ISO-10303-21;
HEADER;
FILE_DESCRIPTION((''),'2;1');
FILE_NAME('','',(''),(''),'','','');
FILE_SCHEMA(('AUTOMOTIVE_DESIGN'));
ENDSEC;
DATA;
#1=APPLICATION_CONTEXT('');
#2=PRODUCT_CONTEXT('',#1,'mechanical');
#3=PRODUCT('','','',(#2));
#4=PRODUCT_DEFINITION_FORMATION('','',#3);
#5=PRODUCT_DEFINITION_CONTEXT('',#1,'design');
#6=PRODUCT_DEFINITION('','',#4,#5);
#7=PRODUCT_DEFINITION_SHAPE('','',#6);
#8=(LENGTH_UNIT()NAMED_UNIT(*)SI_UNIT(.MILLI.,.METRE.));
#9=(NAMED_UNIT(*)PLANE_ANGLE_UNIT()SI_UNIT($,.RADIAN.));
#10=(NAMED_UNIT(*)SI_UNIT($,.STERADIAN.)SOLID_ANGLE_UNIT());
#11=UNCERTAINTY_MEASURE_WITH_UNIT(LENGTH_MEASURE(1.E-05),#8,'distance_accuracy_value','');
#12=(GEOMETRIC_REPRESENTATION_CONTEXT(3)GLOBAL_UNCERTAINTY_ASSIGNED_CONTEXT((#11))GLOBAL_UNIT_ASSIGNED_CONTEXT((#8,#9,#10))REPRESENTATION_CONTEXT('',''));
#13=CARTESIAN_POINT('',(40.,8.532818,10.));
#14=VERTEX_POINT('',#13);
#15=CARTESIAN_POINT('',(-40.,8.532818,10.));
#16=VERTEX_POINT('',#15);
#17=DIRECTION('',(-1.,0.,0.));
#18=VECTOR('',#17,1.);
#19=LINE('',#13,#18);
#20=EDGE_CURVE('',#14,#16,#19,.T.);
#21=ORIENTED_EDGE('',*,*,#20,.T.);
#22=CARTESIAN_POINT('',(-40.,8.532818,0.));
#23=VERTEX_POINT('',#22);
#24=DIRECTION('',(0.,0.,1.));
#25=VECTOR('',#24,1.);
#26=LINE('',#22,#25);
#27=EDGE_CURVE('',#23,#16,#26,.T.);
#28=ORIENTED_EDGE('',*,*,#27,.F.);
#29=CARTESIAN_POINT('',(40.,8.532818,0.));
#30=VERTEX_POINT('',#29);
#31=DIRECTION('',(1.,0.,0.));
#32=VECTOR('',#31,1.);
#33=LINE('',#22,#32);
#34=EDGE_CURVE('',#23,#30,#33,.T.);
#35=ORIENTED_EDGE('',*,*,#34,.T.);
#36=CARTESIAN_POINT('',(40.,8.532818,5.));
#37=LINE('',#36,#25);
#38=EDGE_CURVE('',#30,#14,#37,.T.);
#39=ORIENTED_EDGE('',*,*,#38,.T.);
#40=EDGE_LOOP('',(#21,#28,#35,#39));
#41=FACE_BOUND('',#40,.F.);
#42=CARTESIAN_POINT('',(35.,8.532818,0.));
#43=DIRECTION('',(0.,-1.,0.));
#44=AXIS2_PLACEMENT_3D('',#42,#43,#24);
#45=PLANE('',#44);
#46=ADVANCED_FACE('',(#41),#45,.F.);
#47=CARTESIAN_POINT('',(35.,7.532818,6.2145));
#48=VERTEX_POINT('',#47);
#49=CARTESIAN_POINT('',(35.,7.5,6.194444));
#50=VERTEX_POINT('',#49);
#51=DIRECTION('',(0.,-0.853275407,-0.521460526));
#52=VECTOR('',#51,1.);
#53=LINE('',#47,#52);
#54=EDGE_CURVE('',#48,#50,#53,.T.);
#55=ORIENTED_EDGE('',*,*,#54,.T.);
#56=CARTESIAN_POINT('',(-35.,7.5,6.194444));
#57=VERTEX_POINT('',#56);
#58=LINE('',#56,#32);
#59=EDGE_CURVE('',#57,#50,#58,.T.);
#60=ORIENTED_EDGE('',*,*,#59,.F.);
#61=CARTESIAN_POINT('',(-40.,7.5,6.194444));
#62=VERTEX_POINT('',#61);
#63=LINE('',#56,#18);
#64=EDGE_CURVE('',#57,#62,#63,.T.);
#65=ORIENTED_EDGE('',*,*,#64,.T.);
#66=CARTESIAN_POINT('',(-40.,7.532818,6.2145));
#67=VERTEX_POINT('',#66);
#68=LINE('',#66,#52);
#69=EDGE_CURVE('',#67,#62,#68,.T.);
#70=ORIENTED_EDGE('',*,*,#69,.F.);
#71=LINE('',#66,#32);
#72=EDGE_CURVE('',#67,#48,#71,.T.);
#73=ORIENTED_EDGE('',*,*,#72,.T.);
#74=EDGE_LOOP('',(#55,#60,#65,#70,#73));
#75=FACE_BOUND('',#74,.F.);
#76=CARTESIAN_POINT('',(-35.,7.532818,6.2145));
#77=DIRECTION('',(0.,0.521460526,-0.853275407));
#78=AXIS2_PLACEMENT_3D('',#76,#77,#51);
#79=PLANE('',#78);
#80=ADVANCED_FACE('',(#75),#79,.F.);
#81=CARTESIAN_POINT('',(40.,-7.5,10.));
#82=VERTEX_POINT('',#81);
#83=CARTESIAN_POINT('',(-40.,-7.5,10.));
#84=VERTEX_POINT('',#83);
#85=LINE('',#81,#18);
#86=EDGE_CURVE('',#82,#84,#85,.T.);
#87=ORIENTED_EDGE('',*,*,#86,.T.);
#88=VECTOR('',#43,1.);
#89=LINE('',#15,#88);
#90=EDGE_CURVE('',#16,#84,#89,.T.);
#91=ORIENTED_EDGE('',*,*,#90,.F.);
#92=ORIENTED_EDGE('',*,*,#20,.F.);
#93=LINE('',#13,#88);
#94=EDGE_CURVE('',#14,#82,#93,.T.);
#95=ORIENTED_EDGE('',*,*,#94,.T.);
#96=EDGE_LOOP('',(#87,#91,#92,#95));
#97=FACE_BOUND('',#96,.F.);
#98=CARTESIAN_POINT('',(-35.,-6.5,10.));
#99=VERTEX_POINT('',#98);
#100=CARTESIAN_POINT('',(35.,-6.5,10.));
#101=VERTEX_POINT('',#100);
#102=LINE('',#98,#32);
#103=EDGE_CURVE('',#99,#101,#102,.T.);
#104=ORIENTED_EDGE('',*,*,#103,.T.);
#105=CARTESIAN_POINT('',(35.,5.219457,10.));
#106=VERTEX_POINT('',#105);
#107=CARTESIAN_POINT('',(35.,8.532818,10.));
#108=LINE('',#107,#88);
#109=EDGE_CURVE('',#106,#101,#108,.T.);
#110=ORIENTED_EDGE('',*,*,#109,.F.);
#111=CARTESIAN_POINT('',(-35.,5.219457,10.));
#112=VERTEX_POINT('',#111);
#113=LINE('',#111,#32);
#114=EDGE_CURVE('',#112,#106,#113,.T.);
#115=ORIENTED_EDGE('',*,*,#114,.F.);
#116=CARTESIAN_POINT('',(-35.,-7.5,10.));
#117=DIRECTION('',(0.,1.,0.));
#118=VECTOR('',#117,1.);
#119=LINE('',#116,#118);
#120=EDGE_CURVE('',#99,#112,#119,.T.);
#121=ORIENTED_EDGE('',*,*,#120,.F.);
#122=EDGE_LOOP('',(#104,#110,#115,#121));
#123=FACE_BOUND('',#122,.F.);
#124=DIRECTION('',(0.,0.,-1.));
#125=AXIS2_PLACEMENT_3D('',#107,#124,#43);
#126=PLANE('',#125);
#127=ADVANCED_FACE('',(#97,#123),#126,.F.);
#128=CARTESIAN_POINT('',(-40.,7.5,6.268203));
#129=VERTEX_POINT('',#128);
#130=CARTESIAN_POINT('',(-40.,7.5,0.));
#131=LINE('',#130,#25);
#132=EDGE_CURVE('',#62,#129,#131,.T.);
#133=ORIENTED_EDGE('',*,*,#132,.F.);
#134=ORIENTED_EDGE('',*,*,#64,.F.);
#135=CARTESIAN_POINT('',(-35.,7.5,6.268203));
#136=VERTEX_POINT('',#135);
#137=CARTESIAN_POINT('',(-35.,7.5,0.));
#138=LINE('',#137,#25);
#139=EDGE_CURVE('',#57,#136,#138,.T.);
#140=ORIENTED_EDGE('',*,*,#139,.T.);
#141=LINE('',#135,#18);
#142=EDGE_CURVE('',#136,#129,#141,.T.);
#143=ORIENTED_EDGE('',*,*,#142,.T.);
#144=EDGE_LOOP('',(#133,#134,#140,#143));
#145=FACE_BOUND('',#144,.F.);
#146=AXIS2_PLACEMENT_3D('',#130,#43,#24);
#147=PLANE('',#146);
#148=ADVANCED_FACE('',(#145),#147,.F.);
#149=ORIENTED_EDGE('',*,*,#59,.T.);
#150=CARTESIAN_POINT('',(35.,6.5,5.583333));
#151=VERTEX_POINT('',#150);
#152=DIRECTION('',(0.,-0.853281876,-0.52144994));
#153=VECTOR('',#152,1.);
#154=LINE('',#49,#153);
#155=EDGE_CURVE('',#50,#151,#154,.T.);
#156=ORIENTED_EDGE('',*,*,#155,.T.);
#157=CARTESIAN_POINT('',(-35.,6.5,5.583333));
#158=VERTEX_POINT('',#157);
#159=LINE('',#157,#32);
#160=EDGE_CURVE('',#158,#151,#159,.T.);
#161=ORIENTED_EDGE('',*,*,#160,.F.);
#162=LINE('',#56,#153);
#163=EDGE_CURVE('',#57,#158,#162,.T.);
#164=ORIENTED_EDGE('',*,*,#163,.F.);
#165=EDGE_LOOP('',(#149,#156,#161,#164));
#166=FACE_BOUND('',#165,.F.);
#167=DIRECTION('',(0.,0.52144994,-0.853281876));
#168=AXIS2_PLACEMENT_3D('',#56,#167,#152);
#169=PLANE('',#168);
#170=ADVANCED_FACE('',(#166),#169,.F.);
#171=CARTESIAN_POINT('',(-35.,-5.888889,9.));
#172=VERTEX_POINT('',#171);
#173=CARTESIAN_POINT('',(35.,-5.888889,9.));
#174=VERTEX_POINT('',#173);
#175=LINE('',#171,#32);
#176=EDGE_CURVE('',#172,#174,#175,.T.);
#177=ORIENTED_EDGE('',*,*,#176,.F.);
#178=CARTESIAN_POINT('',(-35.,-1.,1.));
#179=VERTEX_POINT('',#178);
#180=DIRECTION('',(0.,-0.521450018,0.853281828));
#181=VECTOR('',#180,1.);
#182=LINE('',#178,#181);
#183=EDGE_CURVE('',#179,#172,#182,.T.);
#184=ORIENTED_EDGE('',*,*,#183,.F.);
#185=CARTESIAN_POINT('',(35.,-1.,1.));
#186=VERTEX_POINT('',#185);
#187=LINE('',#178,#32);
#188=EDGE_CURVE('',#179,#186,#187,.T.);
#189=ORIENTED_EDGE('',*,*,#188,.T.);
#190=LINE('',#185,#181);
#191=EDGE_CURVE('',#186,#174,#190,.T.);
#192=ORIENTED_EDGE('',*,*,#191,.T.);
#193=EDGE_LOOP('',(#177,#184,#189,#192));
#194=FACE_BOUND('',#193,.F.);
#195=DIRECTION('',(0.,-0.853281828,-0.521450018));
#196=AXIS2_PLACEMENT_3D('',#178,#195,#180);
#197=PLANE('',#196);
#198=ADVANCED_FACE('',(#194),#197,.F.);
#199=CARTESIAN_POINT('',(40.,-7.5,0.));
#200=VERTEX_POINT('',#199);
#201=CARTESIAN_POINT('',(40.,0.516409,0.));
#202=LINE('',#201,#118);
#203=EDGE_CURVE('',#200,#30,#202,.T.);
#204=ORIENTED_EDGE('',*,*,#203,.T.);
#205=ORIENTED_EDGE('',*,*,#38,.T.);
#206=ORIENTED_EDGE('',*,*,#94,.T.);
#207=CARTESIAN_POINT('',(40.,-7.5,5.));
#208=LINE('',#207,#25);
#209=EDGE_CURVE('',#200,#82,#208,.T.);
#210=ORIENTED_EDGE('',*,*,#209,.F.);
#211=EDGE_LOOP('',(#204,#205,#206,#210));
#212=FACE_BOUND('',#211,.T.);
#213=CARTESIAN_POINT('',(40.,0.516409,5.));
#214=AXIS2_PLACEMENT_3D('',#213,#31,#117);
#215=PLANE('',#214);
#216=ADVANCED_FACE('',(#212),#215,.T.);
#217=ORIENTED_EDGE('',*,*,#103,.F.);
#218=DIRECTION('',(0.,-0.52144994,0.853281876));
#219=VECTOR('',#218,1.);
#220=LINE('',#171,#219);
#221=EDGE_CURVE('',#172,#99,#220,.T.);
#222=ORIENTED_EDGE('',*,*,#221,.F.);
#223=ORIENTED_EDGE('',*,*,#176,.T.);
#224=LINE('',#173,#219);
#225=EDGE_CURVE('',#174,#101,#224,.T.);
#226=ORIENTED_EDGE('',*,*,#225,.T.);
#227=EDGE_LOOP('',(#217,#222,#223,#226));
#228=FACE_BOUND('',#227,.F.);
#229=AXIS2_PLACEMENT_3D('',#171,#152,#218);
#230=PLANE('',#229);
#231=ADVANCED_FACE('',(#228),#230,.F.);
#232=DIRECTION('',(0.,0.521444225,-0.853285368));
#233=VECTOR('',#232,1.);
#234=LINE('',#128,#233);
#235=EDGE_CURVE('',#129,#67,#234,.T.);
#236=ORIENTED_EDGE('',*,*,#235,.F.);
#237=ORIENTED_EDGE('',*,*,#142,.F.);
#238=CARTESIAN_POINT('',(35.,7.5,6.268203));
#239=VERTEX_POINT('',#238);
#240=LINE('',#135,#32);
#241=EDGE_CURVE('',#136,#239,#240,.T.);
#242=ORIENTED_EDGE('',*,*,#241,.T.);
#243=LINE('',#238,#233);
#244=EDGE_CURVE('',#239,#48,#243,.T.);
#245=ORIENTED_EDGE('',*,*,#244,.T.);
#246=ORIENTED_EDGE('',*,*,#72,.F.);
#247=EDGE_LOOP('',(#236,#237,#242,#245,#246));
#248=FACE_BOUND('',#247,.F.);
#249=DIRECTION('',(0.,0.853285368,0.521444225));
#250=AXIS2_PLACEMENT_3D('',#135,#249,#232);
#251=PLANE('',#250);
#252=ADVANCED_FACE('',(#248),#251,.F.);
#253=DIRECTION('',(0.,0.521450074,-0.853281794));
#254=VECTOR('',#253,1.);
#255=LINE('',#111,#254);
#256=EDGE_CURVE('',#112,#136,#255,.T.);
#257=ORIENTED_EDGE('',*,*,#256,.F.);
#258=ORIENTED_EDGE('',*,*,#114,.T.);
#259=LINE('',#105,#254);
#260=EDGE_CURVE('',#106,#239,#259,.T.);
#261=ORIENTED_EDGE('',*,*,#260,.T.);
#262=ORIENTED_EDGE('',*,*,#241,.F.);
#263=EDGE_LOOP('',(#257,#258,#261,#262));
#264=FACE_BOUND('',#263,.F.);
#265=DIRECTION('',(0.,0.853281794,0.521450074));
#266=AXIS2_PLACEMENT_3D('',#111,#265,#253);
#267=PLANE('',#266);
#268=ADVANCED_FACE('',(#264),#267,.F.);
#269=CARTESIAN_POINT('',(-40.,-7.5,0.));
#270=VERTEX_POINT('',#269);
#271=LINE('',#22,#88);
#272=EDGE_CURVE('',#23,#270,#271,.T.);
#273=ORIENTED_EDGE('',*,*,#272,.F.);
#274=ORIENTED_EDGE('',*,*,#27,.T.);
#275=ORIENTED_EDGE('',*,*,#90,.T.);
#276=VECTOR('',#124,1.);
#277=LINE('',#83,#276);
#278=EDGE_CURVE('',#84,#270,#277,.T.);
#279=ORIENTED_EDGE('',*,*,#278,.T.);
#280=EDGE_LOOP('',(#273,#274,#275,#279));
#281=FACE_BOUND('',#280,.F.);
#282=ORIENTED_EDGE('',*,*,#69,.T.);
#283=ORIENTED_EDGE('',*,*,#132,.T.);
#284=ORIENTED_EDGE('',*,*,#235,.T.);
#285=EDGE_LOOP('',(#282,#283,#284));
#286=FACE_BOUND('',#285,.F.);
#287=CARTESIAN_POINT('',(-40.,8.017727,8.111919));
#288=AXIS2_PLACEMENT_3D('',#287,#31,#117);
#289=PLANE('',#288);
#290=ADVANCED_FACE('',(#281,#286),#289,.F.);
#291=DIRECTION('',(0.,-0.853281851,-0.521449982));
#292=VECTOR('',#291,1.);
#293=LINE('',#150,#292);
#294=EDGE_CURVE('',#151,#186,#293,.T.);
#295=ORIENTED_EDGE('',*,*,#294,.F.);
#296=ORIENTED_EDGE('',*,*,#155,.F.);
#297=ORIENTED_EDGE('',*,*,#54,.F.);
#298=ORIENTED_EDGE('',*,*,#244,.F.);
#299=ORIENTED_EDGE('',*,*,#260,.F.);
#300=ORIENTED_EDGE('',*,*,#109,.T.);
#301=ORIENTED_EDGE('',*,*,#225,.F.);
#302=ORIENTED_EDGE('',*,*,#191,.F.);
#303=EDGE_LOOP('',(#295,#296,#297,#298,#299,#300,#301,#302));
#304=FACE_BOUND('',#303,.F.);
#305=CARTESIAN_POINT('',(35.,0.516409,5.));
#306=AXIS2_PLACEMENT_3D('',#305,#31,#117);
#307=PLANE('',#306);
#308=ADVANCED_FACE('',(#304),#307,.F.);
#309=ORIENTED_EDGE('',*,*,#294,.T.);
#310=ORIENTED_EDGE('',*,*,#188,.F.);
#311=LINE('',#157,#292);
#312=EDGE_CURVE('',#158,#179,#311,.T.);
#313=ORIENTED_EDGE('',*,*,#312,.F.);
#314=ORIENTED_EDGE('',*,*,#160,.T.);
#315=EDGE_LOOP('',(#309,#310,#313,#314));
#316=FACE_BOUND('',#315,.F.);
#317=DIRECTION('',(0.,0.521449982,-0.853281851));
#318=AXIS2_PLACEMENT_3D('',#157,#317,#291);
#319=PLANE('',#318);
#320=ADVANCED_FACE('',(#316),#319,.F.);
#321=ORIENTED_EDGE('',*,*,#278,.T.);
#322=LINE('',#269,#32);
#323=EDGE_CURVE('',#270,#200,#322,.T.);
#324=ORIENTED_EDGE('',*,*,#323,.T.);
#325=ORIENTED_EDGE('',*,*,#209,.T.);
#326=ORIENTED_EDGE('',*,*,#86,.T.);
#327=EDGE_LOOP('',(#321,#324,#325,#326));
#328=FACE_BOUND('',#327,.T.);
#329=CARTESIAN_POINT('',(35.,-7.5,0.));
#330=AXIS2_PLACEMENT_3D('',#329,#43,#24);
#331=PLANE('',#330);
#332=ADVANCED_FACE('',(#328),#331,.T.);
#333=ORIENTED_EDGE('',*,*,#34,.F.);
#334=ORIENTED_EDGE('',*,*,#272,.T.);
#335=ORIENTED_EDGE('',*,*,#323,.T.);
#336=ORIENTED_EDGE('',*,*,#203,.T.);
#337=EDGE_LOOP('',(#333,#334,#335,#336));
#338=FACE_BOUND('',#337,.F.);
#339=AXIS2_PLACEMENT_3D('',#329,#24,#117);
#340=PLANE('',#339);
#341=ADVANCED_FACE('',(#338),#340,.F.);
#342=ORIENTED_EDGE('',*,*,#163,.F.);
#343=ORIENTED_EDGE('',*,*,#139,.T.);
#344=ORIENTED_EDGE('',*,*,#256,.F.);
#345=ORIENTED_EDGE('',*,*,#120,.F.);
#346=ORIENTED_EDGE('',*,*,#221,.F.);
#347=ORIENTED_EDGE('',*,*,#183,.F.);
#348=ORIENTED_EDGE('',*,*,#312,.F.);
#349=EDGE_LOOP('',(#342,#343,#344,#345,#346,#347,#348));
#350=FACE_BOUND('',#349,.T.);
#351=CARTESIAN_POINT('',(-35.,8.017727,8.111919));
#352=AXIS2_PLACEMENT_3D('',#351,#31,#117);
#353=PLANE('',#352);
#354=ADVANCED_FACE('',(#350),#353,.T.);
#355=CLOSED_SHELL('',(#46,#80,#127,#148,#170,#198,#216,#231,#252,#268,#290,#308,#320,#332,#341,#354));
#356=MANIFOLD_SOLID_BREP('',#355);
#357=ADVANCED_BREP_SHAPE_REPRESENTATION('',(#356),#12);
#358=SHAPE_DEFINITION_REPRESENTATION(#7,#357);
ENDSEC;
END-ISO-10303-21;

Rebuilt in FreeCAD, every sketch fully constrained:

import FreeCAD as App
import Part
import Sketcher

V = App.Vector
Q = App.Units.Quantity


def add_polygon(sketch, points):
    """Adds a closed chain of lines whose ends are joined by coincident constraints."""
    first, n = sketch.GeometryCount, len(points)
    for a, b in zip(points, points[1:] + points[:1]):
        sketch.addGeometry(Part.LineSegment(App.Vector(*a, 0), App.Vector(*b, 0)), False)
    for i in range(n):
        sketch.addConstraint(Sketcher.Constraint("Coincident", first + i, 2, first + (i + 1) % n, 1))

doc = App.newDocument("Part")
body = doc.addObject("PartDesign::Body", "Body")

# Sketch on YZ plane
sketch1 = body.newObject("Sketcher::SketchObject", "Sketch")
sketch1.AttachmentSupport = (doc.getObject("YZ_Plane"), [""])
sketch1.MapMode = "FlatFace"
add_polygon(sketch1, [(-8, 0), (8, 0), (8, 10), (-8, 10)])  # lines 0-3
sketch1.addConstraint(Sketcher.Constraint("Horizontal", 0))
sketch1.addConstraint(Sketcher.Constraint("Vertical", 1))
sketch1.addConstraint(Sketcher.Constraint("Horizontal", 2))
sketch1.addConstraint(Sketcher.Constraint("Vertical", 3))
sketch1.addConstraint(Sketcher.Constraint("Symmetric", 0, 2, 3, 2, -1, 1))
sketch1.addConstraint(Sketcher.Constraint("DistanceX", 0, 1, 0, 2, Q("15 mm")))
sketch1.addConstraint(Sketcher.Constraint("DistanceY", 1, 1, 1, 2, Q("10 mm")))
pad1 = body.newObject("PartDesign::Pad", "Pad")
pad1.Profile = sketch1
pad1.Length = 5

# Sketch on YZ plane
sketch2 = body.newObject("Sketcher::SketchObject", "Sketch001")
sketch2.AttachmentSupport = (doc.getObject("YZ_Plane"), [""])
sketch2.MapMode = "FlatFace"
sketch2.AttachmentOffset = App.Placement(V(0, 0, 5), App.Rotation())
add_polygon(sketch2, [(8.533, 10), (7.5, 10), (7.5, 6.268), (7.533, 6.215), (7.5, 6.194), (7.5, 0), (8.533, 0)])  # lines 0-6
sketch2.addConstraint(Sketcher.Constraint("Horizontal", 0))
sketch2.addConstraint(Sketcher.Constraint("Vertical", 1))
sketch2.addConstraint(Sketcher.Constraint("Vertical", 4))
sketch2.addConstraint(Sketcher.Constraint("Horizontal", 5))
sketch2.addConstraint(Sketcher.Constraint("Vertical", 6))
sketch2.addConstraint(Sketcher.Constraint("PointOnObject", 4, 2, -1))
sketch2.addConstraint(Sketcher.Constraint("Vertical", 1, 2, 3, 2))
sketch2.addConstraint(Sketcher.Constraint("DistanceY", 6, 1, 6, 2, Q("10 mm")))
sketch2.addConstraint(Sketcher.Constraint("DistanceX", 2, 2, 5, 2, Q("1 mm")))
sketch2.addConstraint(Sketcher.Constraint("DistanceX", -1, 1, 0, 2, Q("7.5 mm")))
sketch2.addConstraint(Sketcher.Constraint("DistanceX", 0, 2, 0, 1, Q("1.032818 mm")))
sketch2.addConstraint(Sketcher.Constraint("DistanceY", -1, 1, 2, 2, Q("6.2145 mm")))
sketch2.addConstraint(Sketcher.Constraint("Distance", 3, Q("0.038461 mm")))
sketch2.addConstraint(Sketcher.Constraint("DistanceY", 1, 2, 1, 1, Q("3.731797 mm")))
pad2 = body.newObject("PartDesign::Pad", "Pad001")
pad2.Profile = sketch2
pad2.Length = 5
pad2.Reversed = True

# Sketch on YZ plane
sketch3 = body.newObject("Sketcher::SketchObject", "Sketch002")
sketch3.AttachmentSupport = (doc.getObject("YZ_Plane"), [""])
sketch3.MapMode = "FlatFace"
sketch3.AttachmentOffset = App.Placement(V(0, 0, 5), App.Rotation())
add_polygon(sketch3, [(-7.5, 0), (8.533, 0), (8.533, 10), (5.219, 10), (7.5, 6.268), (7.533, 6.215), (7.5, 6.194), (6.5, 5.583), (-1, 1), (-5.889, 9), (-6.5, 10), (-7.5, 10)])  # lines 0-11
sketch3.addConstraint(Sketcher.Constraint("Horizontal", 0))
sketch3.addConstraint(Sketcher.Constraint("Vertical", 1))
sketch3.addConstraint(Sketcher.Constraint("Horizontal", 2))
sketch3.addConstraint(Sketcher.Constraint("Horizontal", 10))
sketch3.addConstraint(Sketcher.Constraint("Vertical", 11))
sketch3.addConstraint(Sketcher.Constraint("PointOnObject", 0, 2, -1))
sketch3.addConstraint(Sketcher.Constraint("Perpendicular", 3, 6))
sketch3.addConstraint(Sketcher.Constraint("Parallel", 6, 7))
sketch3.addConstraint(Sketcher.Constraint("Perpendicular", 7, 8))
sketch3.addConstraint(Sketcher.Constraint("Parallel", 8, 9))
sketch3.addConstraint(Sketcher.Constraint("Horizontal", 2, 2, 9, 2))
sketch3.addConstraint(Sketcher.Constraint("Vertical", 3, 2, 5, 2))
sketch3.addConstraint(Sketcher.Constraint("Equal", 6, 9))
sketch3.addConstraint(Sketcher.Constraint("DistanceX", 10, 2, 10, 1, Q("1 mm")))
sketch3.addConstraint(Sketcher.Constraint("DistanceY", 1, 1, 1, 2, Q("10 mm")))
sketch3.addConstraint(Sketcher.Constraint("DistanceX", 7, 2, -1, 1, Q("1 mm")))
sketch3.addConstraint(Sketcher.Constraint("DistanceY", -1, 1, 7, 2, Q("1 mm")))
sketch3.addConstraint(Sketcher.Constraint("DistanceY", -1, 1, 8, 2, Q("9 mm")))
sketch3.addConstraint(Sketcher.Constraint("DistanceX", 4, 2, 1, 2, Q("1 mm")))
sketch3.addConstraint(Sketcher.Constraint("DistanceX", 9, 2, 6, 2, Q("13 mm")))
sketch3.addConstraint(Sketcher.Constraint("DistanceX", -1, 1, 3, 2, Q("7.5 mm")))
sketch3.addConstraint(Sketcher.Constraint("DistanceX", 2, 2, 2, 1, Q("3.313361 mm")))
sketch3.addConstraint(Sketcher.Constraint("DistanceY", -1, 1, 4, 2, Q("6.2145 mm")))
sketch3.addConstraint(Sketcher.Constraint("Distance", 5, Q("0.038461 mm")))
pad3 = body.newObject("PartDesign::Pad", "Pad002")
pad3.Profile = sketch3
pad3.Length = 70

# Sketch on YZ plane
sketch4 = body.newObject("Sketcher::SketchObject", "Sketch003")
sketch4.AttachmentSupport = (doc.getObject("YZ_Plane"), [""])
sketch4.MapMode = "FlatFace"
sketch4.AttachmentOffset = App.Placement(V(0, 0, 75), App.Rotation())
add_polygon(sketch4, [(-8, 10), (-8, 0), (9, 0), (9, 10)])  # lines 0-3
sketch4.addConstraint(Sketcher.Constraint("Vertical", 0))
sketch4.addConstraint(Sketcher.Constraint("Horizontal", 1))
sketch4.addConstraint(Sketcher.Constraint("Vertical", 2))
sketch4.addConstraint(Sketcher.Constraint("Horizontal", 3))
sketch4.addConstraint(Sketcher.Constraint("PointOnObject", 0, 2, -1))
sketch4.addConstraint(Sketcher.Constraint("DistanceY", 0, 2, 0, 1, Q("10 mm")))
sketch4.addConstraint(Sketcher.Constraint("DistanceX", 0, 2, -1, 1, Q("7.5 mm")))
sketch4.addConstraint(Sketcher.Constraint("DistanceX", 1, 1, 1, 2, Q("16.032818 mm")))
pad4 = body.newObject("PartDesign::Pad", "Pad003")
pad4.Profile = sketch4
pad4.Length = 5
body2 = doc.addObject("PartDesign::Body", "Body001")
doc.recompute()

body.Placement = App.Placement(V(-40, 0, 0), App.Rotation(V(0, 0, 1), 0))
boolean = body2.newObject("PartDesign::Boolean", "Boolean")
boolean.Type = "Fuse"
boolean.addObjects([body])

doc.recompute()
